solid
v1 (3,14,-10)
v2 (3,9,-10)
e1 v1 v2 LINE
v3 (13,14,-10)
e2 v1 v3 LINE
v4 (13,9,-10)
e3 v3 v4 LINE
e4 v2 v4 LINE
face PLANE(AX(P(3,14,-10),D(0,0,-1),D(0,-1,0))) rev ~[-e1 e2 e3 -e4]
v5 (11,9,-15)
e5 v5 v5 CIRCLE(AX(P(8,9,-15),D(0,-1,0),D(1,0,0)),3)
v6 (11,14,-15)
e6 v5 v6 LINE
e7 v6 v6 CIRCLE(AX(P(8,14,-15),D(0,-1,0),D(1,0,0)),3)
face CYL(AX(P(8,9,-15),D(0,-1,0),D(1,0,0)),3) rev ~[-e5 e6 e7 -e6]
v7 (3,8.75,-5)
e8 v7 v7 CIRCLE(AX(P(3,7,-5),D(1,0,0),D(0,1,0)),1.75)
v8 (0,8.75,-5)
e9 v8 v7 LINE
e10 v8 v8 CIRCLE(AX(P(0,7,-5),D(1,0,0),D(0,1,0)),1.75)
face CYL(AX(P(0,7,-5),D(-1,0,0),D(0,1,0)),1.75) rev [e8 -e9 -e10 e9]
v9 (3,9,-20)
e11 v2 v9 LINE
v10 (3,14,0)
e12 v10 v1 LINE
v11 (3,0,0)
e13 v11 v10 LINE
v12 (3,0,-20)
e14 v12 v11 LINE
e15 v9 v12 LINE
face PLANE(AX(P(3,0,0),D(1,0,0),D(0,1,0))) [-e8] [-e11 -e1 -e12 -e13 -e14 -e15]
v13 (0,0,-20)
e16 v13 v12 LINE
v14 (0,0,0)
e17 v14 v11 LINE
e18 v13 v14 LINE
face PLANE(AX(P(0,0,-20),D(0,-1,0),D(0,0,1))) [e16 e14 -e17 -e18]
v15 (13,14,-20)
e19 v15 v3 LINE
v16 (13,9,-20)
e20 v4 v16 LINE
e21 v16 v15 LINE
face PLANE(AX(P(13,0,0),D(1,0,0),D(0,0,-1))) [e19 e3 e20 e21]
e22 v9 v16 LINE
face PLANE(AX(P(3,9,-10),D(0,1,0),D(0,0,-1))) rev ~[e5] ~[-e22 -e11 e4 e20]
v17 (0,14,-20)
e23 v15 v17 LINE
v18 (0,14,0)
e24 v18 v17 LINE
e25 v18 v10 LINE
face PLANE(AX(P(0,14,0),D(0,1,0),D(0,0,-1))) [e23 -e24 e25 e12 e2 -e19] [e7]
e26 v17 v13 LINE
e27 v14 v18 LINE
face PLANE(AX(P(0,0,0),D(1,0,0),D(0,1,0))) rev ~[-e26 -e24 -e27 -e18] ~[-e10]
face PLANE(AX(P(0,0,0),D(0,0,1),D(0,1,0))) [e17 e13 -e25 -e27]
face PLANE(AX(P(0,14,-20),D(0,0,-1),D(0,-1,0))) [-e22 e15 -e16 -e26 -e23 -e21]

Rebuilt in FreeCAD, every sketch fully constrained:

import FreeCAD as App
import Part
import Sketcher

V = App.Vector


def add_polygon(sketch, points):
    """Adds a closed chain of lines whose ends are joined by coincident constraints."""
    first, n = sketch.GeometryCount, len(points)
    for a, b in zip(points, points[1:] + points[:1]):
        sketch.addGeometry(Part.LineSegment(App.Vector(*a, 0), App.Vector(*b, 0)), False)
    for i in range(n):
        sketch.addConstraint(Sketcher.Constraint("Coincident", first + i, 2, first + (i + 1) % n, 1))

doc = App.newDocument("Part")
body = doc.addObject("PartDesign::Body", "Body")

# Sketch on YZ plane
sketch1 = body.newObject("Sketcher::SketchObject", "Sketch")
sketch1.AttachmentSupport = (doc.getObject("YZ_Plane"), [""])
sketch1.MapMode = "FlatFace"
add_polygon(sketch1, [(14, 0), (0, 0), (0, -20), (14, -20)])  # lines 0-3
sketch1.addGeometry(Part.Circle(V(7, -5, 0), V(0, 0, 1), 1.8), False)  # 4
sketch1.addConstraint([
    Sketcher.Constraint("Horizontal", 0),
    Sketcher.Constraint("Vertical", 1),
    Sketcher.Constraint("Horizontal", 2),
    Sketcher.Constraint("Vertical", 3),
    Sketcher.Constraint("Coincident", 0, 2, -1, 1),
    Sketcher.Constraint("Diameter", 4, 3.5),
    Sketcher.Constraint("DistanceX", 0, 2, 0, 1, 14.0),
    Sketcher.Constraint("DistanceY", 1, 2, 1, 1, 20.0),
    Sketcher.Constraint("DistanceY", 4, 3, -1, 1, 5.0),
    Sketcher.Constraint("DistanceX", -1, 1, 4, 3, 7.0),
])
pad1 = body.newObject("PartDesign::Pad", "Pad")
pad1.Profile = sketch1
pad1.Length = 3

# Sketch on YZ plane
sketch2 = body.newObject("Sketcher::SketchObject", "Sketch001")
sketch2.AttachmentSupport = (doc.getObject("YZ_Plane"), [""])
sketch2.MapMode = "FlatFace"
sketch2.AttachmentOffset = App.Placement(V(0, 0, 3), App.Rotation())
add_polygon(sketch2, [(9, -20), (14, -20), (14, -10), (9, -10)])  # lines 0-3
sketch2.addConstraint([
    Sketcher.Constraint("Horizontal", 0),
    Sketcher.Constraint("Vertical", 1),
    Sketcher.Constraint("Horizontal", 2),
    Sketcher.Constraint("Vertical", 3),
    Sketcher.Constraint("DistanceX", 0, 1, 0, 2, 5.0),
    Sketcher.Constraint("DistanceY", 1, 1, 1, 2, 10.0),
    Sketcher.Constraint("DistanceY", 1, 2, -1, 1, 10.0),
    Sketcher.Constraint("DistanceX", -1, 1, 0, 2, 14.0),
])
pad2 = body.newObject("PartDesign::Pad", "Pad001")
pad2.Profile = sketch2
pad2.Length = 10

# Sketch on XZ plane
sketch3 = body.newObject("Sketcher::SketchObject", "Sketch002")
sketch3.AttachmentSupport = (doc.getObject("XZ_Plane"), [""])
sketch3.MapMode = "FlatFace"
sketch3.AttachmentOffset = App.Placement(V(0, 0, -9), App.Rotation())
sketch3.addGeometry(Part.Circle(V(8, -15, 0), V(0, 0, 1), 3), False)
sketch3.addConstraint([
    Sketcher.Constraint("Diameter", 0, 6.0),
    Sketcher.Constraint("DistanceX", -1, 1, 0, 3, 8.0),
    Sketcher.Constraint("DistanceY", 0, 3, -1, 1, 15.0),
])
pocket1 = body.newObject("PartDesign::Pocket", "Pocket")
pocket1.Profile = sketch3
pocket1.Type = "ThroughAll"

doc.recompute()
